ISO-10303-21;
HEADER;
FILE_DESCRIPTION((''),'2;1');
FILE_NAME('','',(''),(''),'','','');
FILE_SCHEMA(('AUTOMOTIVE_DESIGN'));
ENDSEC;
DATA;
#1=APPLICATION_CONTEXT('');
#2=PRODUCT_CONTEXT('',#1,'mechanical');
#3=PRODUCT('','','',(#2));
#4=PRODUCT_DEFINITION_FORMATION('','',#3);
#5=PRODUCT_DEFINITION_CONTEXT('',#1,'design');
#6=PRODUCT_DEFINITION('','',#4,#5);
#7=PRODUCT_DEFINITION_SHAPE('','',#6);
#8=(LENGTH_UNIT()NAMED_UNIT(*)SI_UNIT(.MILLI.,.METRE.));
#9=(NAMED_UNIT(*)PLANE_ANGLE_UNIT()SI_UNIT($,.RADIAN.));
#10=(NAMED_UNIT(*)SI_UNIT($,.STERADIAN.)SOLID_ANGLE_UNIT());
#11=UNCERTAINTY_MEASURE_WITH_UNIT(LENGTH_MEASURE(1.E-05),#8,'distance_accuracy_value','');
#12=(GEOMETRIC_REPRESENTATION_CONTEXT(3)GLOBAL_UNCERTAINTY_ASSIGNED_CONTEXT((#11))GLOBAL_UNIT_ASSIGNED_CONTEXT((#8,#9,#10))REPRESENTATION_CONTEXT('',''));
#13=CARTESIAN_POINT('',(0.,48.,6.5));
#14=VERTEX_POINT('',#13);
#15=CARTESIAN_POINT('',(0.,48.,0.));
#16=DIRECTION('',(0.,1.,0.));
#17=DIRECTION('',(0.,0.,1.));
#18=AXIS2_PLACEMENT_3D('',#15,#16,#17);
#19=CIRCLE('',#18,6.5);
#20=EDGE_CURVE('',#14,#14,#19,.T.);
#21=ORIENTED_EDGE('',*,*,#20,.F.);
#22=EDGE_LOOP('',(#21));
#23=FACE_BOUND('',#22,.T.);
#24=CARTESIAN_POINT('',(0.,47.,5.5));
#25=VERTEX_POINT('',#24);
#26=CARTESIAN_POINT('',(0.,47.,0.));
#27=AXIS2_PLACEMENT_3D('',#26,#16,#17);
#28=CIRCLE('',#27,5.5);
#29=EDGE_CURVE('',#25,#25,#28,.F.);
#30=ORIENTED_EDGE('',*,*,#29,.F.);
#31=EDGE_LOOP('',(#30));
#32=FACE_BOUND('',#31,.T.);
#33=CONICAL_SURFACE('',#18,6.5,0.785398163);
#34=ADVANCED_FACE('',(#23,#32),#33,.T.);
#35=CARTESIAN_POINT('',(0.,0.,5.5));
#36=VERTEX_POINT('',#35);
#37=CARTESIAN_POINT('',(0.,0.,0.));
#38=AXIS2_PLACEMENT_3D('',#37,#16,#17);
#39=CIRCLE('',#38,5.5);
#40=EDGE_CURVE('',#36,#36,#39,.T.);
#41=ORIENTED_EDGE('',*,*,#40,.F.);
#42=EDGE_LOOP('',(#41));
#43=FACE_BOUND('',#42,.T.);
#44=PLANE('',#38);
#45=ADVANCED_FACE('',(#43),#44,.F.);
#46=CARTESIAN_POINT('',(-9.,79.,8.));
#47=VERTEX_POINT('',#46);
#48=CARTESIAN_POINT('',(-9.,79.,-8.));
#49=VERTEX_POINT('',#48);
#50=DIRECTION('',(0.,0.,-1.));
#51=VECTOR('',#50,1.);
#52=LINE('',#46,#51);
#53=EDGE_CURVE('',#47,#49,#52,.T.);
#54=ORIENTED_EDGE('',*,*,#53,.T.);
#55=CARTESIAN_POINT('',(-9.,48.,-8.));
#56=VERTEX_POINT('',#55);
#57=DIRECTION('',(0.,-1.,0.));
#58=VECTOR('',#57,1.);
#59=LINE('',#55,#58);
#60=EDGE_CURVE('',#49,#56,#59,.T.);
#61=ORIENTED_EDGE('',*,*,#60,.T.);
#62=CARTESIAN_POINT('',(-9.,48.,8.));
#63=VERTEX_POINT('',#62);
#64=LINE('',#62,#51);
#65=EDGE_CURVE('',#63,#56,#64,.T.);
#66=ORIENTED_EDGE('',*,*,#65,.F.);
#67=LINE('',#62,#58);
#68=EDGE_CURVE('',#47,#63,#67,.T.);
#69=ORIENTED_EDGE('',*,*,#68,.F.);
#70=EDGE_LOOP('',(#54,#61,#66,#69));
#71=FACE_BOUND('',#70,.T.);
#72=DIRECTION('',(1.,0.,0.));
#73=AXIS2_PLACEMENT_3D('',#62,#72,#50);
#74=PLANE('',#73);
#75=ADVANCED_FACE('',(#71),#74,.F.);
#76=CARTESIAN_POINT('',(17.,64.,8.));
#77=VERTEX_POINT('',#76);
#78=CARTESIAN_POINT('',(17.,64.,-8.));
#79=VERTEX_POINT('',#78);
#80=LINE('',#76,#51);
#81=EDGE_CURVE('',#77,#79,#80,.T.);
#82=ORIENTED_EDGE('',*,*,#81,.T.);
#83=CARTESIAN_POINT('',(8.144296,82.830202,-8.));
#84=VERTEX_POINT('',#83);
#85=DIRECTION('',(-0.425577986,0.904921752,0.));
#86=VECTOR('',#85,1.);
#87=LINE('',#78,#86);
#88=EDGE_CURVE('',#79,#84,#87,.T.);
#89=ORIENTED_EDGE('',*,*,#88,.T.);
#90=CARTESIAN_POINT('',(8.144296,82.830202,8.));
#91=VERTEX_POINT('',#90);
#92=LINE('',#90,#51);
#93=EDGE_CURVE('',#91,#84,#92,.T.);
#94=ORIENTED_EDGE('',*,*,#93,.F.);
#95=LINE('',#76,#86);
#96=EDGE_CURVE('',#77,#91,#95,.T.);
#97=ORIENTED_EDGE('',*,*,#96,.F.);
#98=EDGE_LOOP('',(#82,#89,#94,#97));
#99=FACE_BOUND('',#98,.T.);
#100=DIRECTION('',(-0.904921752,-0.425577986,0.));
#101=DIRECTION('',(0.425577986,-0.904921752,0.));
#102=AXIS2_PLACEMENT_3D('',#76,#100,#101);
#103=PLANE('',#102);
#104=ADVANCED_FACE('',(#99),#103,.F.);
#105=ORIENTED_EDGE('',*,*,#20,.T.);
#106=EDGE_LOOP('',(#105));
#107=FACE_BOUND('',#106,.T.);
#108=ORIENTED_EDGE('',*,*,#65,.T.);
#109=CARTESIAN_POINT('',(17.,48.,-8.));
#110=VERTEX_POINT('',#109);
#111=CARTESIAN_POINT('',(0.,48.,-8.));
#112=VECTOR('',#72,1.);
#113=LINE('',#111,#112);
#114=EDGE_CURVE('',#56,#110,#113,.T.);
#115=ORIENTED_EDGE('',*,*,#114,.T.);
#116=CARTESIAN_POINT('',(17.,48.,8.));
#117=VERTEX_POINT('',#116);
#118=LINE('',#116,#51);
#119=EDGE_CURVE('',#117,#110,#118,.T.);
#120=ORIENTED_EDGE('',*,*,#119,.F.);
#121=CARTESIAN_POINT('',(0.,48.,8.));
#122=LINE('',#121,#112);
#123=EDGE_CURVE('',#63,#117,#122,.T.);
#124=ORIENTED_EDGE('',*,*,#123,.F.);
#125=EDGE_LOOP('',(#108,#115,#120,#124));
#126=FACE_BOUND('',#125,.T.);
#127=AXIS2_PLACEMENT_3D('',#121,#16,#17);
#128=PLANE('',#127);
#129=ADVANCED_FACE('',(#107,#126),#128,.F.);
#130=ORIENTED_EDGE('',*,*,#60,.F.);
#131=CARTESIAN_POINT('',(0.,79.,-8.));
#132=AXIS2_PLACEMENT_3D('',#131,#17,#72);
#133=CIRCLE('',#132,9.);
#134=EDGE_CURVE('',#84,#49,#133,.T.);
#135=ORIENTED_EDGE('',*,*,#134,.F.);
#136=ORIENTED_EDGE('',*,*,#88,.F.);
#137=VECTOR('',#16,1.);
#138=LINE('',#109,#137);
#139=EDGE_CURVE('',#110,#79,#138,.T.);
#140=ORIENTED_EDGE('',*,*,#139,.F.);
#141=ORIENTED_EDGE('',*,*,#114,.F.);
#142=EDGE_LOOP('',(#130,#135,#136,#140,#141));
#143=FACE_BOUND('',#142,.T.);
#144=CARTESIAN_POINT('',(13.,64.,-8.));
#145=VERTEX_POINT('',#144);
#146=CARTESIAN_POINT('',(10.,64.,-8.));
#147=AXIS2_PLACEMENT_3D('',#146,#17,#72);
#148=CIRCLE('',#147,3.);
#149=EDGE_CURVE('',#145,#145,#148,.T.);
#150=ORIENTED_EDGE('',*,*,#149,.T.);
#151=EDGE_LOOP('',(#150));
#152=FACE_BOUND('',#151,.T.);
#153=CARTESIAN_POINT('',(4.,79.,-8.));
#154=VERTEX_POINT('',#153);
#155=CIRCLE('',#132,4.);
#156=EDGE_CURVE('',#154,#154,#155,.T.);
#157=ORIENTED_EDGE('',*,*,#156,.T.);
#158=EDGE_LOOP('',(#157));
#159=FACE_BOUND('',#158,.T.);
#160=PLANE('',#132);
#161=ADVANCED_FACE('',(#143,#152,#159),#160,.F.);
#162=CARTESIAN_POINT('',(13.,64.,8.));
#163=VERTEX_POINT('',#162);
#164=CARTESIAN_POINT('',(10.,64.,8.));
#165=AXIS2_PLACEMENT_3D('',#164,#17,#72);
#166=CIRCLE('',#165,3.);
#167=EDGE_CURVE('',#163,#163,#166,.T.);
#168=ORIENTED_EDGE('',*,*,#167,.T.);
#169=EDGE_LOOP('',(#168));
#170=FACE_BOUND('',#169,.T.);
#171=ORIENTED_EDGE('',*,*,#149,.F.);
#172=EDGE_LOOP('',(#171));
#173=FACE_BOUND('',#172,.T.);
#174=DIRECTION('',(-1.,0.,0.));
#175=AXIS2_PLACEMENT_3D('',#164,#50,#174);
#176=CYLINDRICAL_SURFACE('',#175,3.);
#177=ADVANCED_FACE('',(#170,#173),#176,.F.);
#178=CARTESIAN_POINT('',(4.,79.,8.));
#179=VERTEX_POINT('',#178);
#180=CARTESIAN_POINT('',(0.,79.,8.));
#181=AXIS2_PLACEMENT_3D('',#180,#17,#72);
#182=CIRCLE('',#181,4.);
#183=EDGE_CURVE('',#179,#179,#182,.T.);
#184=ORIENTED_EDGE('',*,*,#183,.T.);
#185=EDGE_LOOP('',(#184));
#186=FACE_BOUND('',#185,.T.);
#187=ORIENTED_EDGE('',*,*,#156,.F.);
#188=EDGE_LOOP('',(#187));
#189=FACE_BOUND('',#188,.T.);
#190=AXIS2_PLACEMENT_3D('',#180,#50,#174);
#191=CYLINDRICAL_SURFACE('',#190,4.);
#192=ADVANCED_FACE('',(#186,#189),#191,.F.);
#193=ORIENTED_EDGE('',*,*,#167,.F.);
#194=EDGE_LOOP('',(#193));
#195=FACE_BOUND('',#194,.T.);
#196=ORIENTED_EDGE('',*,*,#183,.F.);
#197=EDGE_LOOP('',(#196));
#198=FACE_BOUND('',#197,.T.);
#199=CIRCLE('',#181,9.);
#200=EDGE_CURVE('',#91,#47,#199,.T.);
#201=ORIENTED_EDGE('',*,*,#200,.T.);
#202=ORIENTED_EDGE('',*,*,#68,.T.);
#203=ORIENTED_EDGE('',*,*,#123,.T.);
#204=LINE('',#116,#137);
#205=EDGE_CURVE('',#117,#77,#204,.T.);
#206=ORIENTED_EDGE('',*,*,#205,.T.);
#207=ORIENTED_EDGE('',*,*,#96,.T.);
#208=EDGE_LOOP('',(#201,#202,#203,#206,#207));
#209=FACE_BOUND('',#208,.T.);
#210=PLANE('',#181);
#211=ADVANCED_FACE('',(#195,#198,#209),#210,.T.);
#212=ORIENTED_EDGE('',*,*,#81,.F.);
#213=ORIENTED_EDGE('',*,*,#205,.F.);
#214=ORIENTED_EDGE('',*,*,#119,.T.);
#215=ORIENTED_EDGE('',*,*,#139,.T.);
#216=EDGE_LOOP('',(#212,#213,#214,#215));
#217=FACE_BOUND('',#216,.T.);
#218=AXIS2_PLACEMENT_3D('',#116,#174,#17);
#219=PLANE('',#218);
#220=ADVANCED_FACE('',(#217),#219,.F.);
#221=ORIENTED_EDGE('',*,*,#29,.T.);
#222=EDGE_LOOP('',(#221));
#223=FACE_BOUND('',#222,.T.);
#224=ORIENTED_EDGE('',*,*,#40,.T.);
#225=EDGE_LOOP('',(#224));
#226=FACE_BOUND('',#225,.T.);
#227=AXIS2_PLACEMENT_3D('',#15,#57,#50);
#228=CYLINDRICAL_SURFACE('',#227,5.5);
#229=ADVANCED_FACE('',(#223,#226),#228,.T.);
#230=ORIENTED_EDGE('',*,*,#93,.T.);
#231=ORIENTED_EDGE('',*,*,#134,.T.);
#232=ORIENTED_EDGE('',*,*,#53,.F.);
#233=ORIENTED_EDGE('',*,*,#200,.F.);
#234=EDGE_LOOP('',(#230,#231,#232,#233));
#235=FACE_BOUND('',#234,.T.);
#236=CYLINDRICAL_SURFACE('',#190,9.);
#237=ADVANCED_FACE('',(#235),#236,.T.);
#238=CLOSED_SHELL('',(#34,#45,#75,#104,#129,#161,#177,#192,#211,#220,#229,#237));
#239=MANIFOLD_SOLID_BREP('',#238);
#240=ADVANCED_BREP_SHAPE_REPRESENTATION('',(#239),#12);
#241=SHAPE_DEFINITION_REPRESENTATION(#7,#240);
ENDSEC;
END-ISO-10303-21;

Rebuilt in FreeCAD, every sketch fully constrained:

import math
import FreeCAD as App
import Part
import Sketcher


def edges_at(feature, points):
    """Names of the edges that pass closest to the given points."""
    edges = feature.Shape.Edges
    near = lambda p: min(range(len(edges)), key=lambda i: edges[i].distToShape(Part.Vertex(*p))[0])
    return sorted({f"Edge{near(p) + 1}" for p in points})

doc = App.newDocument("Part")
body = doc.addObject("PartDesign::Body", "Body")

sketch1 = body.newObject("Sketcher::SketchObject", "Sketch")
sketch1.AttachmentSupport = (doc.getObject("XZ_Plane"), [""])
sketch1.MapMode = "FlatFace"
sketch1.addGeometry(Part.Circle(App.Vector(0, 0, 0), App.Vector(0, 0, 1), 6), False)
sketch1.addConstraint(Sketcher.Constraint("Coincident", 0, 3, -1, 1))
sketch1.addConstraint(Sketcher.Constraint("Diameter", 0, 11.0))
pad1 = body.newObject("PartDesign::Pad", "Pad")
pad1.Profile = sketch1
pad1.Length = 48
pad1.Reversed = True

sketch2 = body.newObject("Sketcher::SketchObject", "Sketch001")
sketch2.AttachmentSupport = (doc.getObject("XY_Plane"), [""])
sketch2.MapMode = "FlatFace"
sketch2.addGeometry(Part.LineSegment(App.Vector(17, 48, 0), App.Vector(17, 64, 0)), False)
sketch2.addGeometry(Part.LineSegment(App.Vector(17, 64, 0), App.Vector(8.1, 82.8, 0)), False)
sketch2.addGeometry(Part.ArcOfCircle(Part.Circle(App.Vector(0, 79, 0), App.Vector(0, 0, 1), 9), math.radians(25), math.radians(180)), False)
sketch2.addGeometry(Part.LineSegment(App.Vector(-9, 79, 0), App.Vector(-9, 48, 0)), False)
sketch2.addGeometry(Part.LineSegment(App.Vector(-9, 48, 0), App.Vector(17, 48, 0)), False)
sketch2.addGeometry(Part.Circle(App.Vector(10, 64, 0), App.Vector(0, 0, 1), 3), False)
sketch2.addGeometry(Part.Circle(App.Vector(0, 79, 0), App.Vector(0, 0, 1), 4), False)
sketch2.addConstraint(Sketcher.Constraint("Coincident", 0, 2, 1, 1))
sketch2.addConstraint(Sketcher.Constraint("Tangent", 1, 2, 2, 1))
sketch2.addConstraint(Sketcher.Constraint("Tangent", 2, 2, 3, 1))
sketch2.addConstraint(Sketcher.Constraint("Coincident", 3, 2, 4, 1))
sketch2.addConstraint(Sketcher.Constraint("Coincident", 4, 2, 0, 1))
sketch2.addConstraint(Sketcher.Constraint("Vertical", 0))
sketch2.addConstraint(Sketcher.Constraint("Vertical", 3))
sketch2.addConstraint(Sketcher.Constraint("Horizontal", 4))
sketch2.addConstraint(Sketcher.Constraint("Coincident", 6, 3, 2, 3))
sketch2.addConstraint(Sketcher.Constraint("PointOnObject", 2, 3, -2))
sketch2.addConstraint(Sketcher.Constraint("Horizontal", 5, 3, 0, 2))
sketch2.addConstraint(Sketcher.Constraint("Diameter", 5, 6.0))
sketch2.addConstraint(Sketcher.Constraint("Diameter", 6, 8.0))
sketch2.addConstraint(Sketcher.Constraint("Radius", 2, 9.0))
sketch2.addConstraint(Sketcher.Constraint("DistanceX", 4, 1, 4, 2, 26.0))
sketch2.addConstraint(Sketcher.Constraint("DistanceY", 0, 1, 0, 2, 16.0))
sketch2.addConstraint(Sketcher.Constraint("DistanceY", 3, 2, 3, 1, 31.0))
sketch2.addConstraint(Sketcher.Constraint("DistanceY", -1, 1, 2, 3, 79.0))
sketch2.addConstraint(Sketcher.Constraint("DistanceX", -1, 1, 5, 3, 10.0))
pad2 = body.newObject("PartDesign::Pad", "Pad001")
pad2.Profile = sketch2
pad2.Length = 16
pad2.Midplane = True
doc.recompute()

chamfer = body.newObject("PartDesign::Chamfer", "Chamfer")
chamfer.Base = (pad2, edges_at(pad2, [(0, 48, -5.5)]))
chamfer.Size = 1

doc.recompute()
